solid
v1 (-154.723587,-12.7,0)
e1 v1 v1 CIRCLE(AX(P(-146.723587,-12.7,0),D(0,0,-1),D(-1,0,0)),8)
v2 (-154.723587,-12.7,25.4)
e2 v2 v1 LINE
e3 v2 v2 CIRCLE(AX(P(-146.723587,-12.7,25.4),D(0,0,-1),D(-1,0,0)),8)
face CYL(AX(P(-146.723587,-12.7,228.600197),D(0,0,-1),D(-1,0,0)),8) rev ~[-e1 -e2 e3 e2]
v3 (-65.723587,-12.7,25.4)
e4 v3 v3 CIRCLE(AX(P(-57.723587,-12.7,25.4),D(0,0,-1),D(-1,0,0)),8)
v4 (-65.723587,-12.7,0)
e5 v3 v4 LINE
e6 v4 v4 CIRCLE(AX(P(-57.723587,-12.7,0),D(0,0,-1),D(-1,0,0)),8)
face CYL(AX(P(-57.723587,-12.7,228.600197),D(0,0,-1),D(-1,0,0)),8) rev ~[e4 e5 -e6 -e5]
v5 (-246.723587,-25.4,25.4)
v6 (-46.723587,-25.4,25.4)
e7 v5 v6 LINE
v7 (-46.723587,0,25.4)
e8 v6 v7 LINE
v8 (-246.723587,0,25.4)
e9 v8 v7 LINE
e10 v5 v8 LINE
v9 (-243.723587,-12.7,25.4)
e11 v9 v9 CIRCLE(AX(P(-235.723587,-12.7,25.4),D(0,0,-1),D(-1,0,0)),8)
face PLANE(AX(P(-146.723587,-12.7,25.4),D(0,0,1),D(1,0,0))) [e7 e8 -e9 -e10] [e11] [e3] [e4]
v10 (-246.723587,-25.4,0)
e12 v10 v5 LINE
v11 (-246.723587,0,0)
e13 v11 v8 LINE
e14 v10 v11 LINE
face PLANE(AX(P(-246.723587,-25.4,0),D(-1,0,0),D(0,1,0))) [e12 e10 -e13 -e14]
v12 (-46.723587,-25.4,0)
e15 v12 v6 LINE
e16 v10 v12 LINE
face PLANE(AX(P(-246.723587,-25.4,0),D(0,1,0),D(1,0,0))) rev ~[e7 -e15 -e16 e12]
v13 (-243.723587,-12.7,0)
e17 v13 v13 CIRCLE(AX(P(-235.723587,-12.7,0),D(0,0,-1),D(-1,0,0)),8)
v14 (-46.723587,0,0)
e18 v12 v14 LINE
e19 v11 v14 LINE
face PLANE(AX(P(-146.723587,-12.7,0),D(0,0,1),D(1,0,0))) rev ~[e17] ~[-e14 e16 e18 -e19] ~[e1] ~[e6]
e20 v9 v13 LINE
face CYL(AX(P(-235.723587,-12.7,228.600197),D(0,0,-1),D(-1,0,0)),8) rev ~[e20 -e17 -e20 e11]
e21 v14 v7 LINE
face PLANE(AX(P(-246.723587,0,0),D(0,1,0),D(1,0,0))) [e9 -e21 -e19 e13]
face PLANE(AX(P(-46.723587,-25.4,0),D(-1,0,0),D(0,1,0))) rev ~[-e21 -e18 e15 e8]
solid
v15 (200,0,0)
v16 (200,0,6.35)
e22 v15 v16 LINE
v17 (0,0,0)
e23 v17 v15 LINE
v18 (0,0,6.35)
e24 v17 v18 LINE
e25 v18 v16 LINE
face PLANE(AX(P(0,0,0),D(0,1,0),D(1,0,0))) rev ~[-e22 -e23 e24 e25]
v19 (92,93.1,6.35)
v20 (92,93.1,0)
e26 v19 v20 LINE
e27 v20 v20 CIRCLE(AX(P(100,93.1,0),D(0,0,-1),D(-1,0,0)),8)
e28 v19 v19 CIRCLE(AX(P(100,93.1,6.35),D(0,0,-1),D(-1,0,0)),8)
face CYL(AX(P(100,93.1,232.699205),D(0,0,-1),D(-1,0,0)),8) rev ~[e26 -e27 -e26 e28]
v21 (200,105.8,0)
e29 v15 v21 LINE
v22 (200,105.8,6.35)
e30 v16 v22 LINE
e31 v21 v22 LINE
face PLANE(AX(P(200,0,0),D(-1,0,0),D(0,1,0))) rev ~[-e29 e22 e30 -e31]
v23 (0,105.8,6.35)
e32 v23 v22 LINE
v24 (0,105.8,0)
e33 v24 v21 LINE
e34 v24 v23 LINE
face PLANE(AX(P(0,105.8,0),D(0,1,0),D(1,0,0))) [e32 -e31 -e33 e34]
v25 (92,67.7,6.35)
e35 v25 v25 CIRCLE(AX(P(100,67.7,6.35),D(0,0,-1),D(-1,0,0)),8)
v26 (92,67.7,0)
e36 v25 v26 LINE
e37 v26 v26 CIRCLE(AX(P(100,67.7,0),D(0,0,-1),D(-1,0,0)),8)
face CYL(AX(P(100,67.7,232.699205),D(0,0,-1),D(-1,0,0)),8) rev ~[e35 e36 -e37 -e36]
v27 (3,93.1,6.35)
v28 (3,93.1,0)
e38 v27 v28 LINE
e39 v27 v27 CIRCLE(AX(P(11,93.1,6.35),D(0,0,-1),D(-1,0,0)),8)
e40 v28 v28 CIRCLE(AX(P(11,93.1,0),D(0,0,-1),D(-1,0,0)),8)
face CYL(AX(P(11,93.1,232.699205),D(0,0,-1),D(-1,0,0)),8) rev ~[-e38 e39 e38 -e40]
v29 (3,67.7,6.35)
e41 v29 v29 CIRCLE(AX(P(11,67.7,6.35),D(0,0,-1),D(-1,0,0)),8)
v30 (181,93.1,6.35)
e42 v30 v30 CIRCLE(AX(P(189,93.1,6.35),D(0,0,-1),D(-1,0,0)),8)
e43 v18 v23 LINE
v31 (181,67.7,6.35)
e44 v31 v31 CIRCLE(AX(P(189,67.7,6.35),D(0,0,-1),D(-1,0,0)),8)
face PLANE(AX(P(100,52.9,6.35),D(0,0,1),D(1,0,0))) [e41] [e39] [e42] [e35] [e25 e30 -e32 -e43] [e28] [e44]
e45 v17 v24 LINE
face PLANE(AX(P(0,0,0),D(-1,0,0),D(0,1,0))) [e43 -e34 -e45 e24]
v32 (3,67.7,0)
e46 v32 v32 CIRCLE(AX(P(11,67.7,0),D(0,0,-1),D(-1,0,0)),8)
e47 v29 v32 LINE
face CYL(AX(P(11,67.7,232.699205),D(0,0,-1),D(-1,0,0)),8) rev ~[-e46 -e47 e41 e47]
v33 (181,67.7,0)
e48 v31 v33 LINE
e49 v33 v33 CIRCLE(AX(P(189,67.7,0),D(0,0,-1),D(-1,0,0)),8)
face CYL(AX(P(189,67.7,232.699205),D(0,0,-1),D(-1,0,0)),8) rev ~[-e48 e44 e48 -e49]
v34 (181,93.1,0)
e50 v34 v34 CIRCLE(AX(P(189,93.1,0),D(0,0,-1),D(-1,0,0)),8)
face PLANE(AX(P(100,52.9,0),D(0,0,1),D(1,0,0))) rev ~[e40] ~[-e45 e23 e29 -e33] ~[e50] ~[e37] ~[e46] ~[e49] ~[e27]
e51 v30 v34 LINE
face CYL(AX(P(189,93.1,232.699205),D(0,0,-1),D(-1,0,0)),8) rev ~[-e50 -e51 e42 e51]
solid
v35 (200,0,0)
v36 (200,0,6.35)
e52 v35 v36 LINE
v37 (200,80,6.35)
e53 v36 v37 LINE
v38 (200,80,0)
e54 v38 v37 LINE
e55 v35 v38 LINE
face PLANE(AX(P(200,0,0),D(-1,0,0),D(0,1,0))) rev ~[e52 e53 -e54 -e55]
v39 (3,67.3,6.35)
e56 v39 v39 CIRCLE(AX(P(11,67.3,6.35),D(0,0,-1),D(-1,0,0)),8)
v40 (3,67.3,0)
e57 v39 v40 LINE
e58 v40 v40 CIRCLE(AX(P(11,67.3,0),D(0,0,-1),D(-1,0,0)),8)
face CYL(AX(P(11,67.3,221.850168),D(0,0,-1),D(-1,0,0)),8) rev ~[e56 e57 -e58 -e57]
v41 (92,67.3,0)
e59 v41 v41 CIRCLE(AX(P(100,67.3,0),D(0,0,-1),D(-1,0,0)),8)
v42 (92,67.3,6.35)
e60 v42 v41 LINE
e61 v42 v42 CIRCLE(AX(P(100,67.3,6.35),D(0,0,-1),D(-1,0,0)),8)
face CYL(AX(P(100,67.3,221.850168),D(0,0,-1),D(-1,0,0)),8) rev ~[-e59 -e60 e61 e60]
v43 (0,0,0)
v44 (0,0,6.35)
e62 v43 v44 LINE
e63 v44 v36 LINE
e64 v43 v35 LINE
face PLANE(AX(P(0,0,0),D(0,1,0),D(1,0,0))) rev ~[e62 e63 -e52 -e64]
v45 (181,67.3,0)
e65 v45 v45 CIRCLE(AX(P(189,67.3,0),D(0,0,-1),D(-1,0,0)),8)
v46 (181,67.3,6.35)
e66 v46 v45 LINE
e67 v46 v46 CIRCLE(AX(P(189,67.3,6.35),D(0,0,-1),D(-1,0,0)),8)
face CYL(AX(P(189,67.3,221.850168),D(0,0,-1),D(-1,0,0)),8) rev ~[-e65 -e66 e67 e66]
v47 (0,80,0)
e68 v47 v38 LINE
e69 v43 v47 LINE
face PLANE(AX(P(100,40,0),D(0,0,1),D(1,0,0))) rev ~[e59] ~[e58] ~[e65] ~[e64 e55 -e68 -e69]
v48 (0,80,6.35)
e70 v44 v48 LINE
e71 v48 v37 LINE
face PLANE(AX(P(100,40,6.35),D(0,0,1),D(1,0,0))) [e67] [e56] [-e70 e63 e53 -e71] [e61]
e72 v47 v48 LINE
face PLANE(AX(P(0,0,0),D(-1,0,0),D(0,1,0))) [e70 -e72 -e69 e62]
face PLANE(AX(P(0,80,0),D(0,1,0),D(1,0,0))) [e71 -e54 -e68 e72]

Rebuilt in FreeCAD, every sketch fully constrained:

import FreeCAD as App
import Part
import Sketcher

doc = App.newDocument("Part")
body = doc.addObject("PartDesign::Body", "Body")

# Sketch on XY plane
sketch1 = body.newObject("Sketcher::SketchObject", "Sketch")
sketch1.AttachmentSupport = (doc.getObject("XY_Plane"), [""])
sketch1.MapMode = "FlatFace"
sketch1.addGeometry([
    Part.LineSegment(App.Vector(0, 80, 0), App.Vector(0, 0, 0)),
    Part.LineSegment(App.Vector(0, 0, 0), App.Vector(200, 0, 0)),
    Part.LineSegment(App.Vector(200, 0, 0), App.Vector(200, 80, 0)),
    Part.LineSegment(App.Vector(200, 80, 0), App.Vector(0, 80, 0)),
], False)
sketch1.addConstraint([
    Sketcher.Constraint("Coincident", 0, 2, 1, 1),
    Sketcher.Constraint("Coincident", 1, 2, 2, 1),
    Sketcher.Constraint("Coincident", 2, 2, 3, 1),
    Sketcher.Constraint("Coincident", 3, 2, 0, 1),
    Sketcher.Constraint("Vertical", 0),
    Sketcher.Constraint("Horizontal", 1),
    Sketcher.Constraint("Vertical", 2),
    Sketcher.Constraint("Horizontal", 3),
    Sketcher.Constraint("Coincident", 0, 2, -1, 1),
    Sketcher.Constraint("DistanceX", 1, 1, 1, 2, 200.0),
    Sketcher.Constraint("DistanceY", 0, 2, 0, 1, 80.0),
])
pad1 = body.newObject("PartDesign::Pad", "Pad")
pad1.Profile = sketch1
pad1.Length = 6.35

# Sketch on XY plane
sketch2 = body.newObject("Sketcher::SketchObject", "Sketch001")
sketch2.AttachmentSupport = (doc.getObject("XY_Plane"), [""])
sketch2.MapMode = "FlatFace"
sketch2.AttachmentOffset = App.Placement(App.Vector(0, 0, 6.35), App.Rotation())
sketch2.addGeometry([
    Part.Circle(App.Vector(11, 67, 0), App.Vector(0, 0, 1), 8),
    Part.Circle(App.Vector(100, 67, 0), App.Vector(0, 0, 1), 8),
    Part.Circle(App.Vector(189, 67, 0), App.Vector(0, 0, 1), 8),
], False)
sketch2.addConstraint([
    Sketcher.Constraint("Equal", 0, 1),
    Sketcher.Constraint("Equal", 1, 2),
    Sketcher.Constraint("Horizontal", 0, 3, 1, 3),
    Sketcher.Constraint("Horizontal", 1, 3, 2, 3),
    Sketcher.Constraint("Diameter", 0, 16.0),
    Sketcher.Constraint("DistanceX", -1, 1, 0, 3, 11.0),
    Sketcher.Constraint("DistanceX", -1, 1, 1, 3, 100.0),
    Sketcher.Constraint("DistanceX", -1, 1, 2, 3, 189.0),
    Sketcher.Constraint("DistanceY", -1, 1, 0, 3, 67.3),
])
doc.recompute()
hole = body.newObject("PartDesign::Hole", "Hole")
hole.Profile = sketch2
hole.ThreadType = "None"
hole.Diameter = 16
hole.DepthType = "ThroughAll"
body2 = doc.addObject("PartDesign::Body", "Body001")

# Sketch on XY plane
sketch3 = body2.newObject("Sketcher::SketchObject", "Sketch002")
sketch3.AttachmentSupport = (doc.getObject("XY_Plane001"), [""])
sketch3.MapMode = "FlatFace"
sketch3.addGeometry([
    Part.LineSegment(App.Vector(-247, 0, 0), App.Vector(-247, -25, 0)),
    Part.LineSegment(App.Vector(-247, -25, 0), App.Vector(-47, -25, 0)),
    Part.LineSegment(App.Vector(-47, -25, 0), App.Vector(-47, 0, 0)),
    Part.LineSegment(App.Vector(-47, 0, 0), App.Vector(-247, 0, 0)),
], False)
sketch3.addConstraint([
    Sketcher.Constraint("Coincident", 0, 2, 1, 1),
    Sketcher.Constraint("Coincident", 1, 2, 2, 1),
    Sketcher.Constraint("Coincident", 2, 2, 3, 1),
    Sketcher.Constraint("Coincident", 3, 2, 0, 1),
    Sketcher.Constraint("Vertical", 0),
    Sketcher.Constraint("Horizontal", 1),
    Sketcher.Constraint("Vertical", 2),
    Sketcher.Constraint("Horizontal", 3),
    Sketcher.Constraint("PointOnObject", 2, 2, -1),
    Sketcher.Constraint("DistanceX", 1, 1, 1, 2, 200.0),
    Sketcher.Constraint("DistanceY", 0, 2, 0, 1, 25.4),
    Sketcher.Constraint("DistanceX", 0, 2, -1, 1, 246.723587),
])
pad2 = body2.newObject("PartDesign::Pad", "Pad001")
pad2.Profile = sketch3
pad2.Length = 25.4

# Sketch on XY plane
sketch4 = body2.newObject("Sketcher::SketchObject", "Sketch003")
sketch4.AttachmentSupport = (doc.getObject("XY_Plane001"), [""])
sketch4.MapMode = "FlatFace"
sketch4.AttachmentOffset = App.Placement(App.Vector(0, 0, 25.4), App.Rotation())
sketch4.addGeometry([
    Part.Circle(App.Vector(-58, -13, 0), App.Vector(0, 0, 1), 8),
    Part.Circle(App.Vector(-147, -13, 0), App.Vector(0, 0, 1), 8),
    Part.Circle(App.Vector(-236, -13, 0), App.Vector(0, 0, 1), 8),
], False)
sketch4.addConstraint([
    Sketcher.Constraint("Equal", 0, 1),
    Sketcher.Constraint("Equal", 1, 2),
    Sketcher.Constraint("Horizontal", 0, 3, 1, 3),
    Sketcher.Constraint("Horizontal", 1, 3, 2, 3),
    Sketcher.Constraint("Diameter", 0, 16.0),
    Sketcher.Constraint("DistanceX", 1, 3, 0, 3, 89.0),
    Sketcher.Constraint("DistanceX", 2, 3, 1, 3, 89.0),
    Sketcher.Constraint("DistanceY", 0, 3, -1, 1, 12.7),
    Sketcher.Constraint("DistanceX", 0, 3, -1, 1, 57.723587),
])
doc.recompute()
hole2 = body2.newObject("PartDesign::Hole", "Hole001")
hole2.Profile = sketch4
hole2.ThreadType = "None"
hole2.Diameter = 16
hole2.DepthType = "ThroughAll"
body3 = doc.addObject("PartDesign::Body", "Body002")

# Sketch on XY plane
sketch5 = body3.newObject("Sketcher::SketchObject", "Sketch004")
sketch5.AttachmentSupport = (doc.getObject("XY_Plane002"), [""])
sketch5.MapMode = "FlatFace"
sketch5.addGeometry([
    Part.LineSegment(App.Vector(0, 106, 0), App.Vector(0, 0, 0)),
    Part.LineSegment(App.Vector(0, 0, 0), App.Vector(200, 0, 0)),
    Part.LineSegment(App.Vector(200, 0, 0), App.Vector(200, 106, 0)),
    Part.LineSegment(App.Vector(200, 106, 0), App.Vector(0, 106, 0)),
], False)
sketch5.addConstraint([
    Sketcher.Constraint("Coincident", 0, 2, 1, 1),
    Sketcher.Constraint("Coincident", 1, 2, 2, 1),
    Sketcher.Constraint("Coincident", 2, 2, 3, 1),
    Sketcher.Constraint("Coincident", 3, 2, 0, 1),
    Sketcher.Constraint("Vertical", 0),
    Sketcher.Constraint("Horizontal", 1),
    Sketcher.Constraint("Vertical", 2),
    Sketcher.Constraint("Horizontal", 3),
    Sketcher.Constraint("Coincident", 0, 2, -1, 1),
    Sketcher.Constraint("DistanceX", 1, 1, 1, 2, 200.0),
    Sketcher.Constraint("DistanceY", 0, 2, 0, 1, 105.8),
])
pad3 = body3.newObject("PartDesign::Pad", "Pad002")
pad3.Profile = sketch5
pad3.Length = 6.35

# Sketch on XY plane
sketch6 = body3.newObject("Sketcher::SketchObject", "Sketch005")
sketch6.AttachmentSupport = (doc.getObject("XY_Plane002"), [""])
sketch6.MapMode = "FlatFace"
sketch6.AttachmentOffset = App.Placement(App.Vector(0, 0, 6.35), App.Rotation())
sketch6.addGeometry([
    Part.Circle(App.Vector(11, 93, 0), App.Vector(0, 0, 1), 8),  # 0
    Part.Circle(App.Vector(100, 93, 0), App.Vector(0, 0, 1), 8),  # 1
    Part.Circle(App.Vector(189, 93, 0), App.Vector(0, 0, 1), 8),  # 2
    Part.Circle(App.Vector(189, 68, 0), App.Vector(0, 0, 1), 8),  # 3
    Part.Circle(App.Vector(100, 68, 0), App.Vector(0, 0, 1), 8),  # 4
    Part.Circle(App.Vector(11, 68, 0), App.Vector(0, 0, 1), 8),  # 5
], False)
sketch6.addConstraint([
    Sketcher.Constraint("Equal", 0, 1),
    Sketcher.Constraint("Equal", 1, 2),
    Sketcher.Constraint("Equal", 2, 3),
    Sketcher.Constraint("Equal", 3, 4),
    Sketcher.Constraint("Equal", 4, 5),
    Sketcher.Constraint("Horizontal", 0, 3, 1, 3),
    Sketcher.Constraint("Horizontal", 1, 3, 2, 3),
    Sketcher.Constraint("Horizontal", 3, 3, 4, 3),
    Sketcher.Constraint("Horizontal", 4, 3, 5, 3),
    Sketcher.Constraint("Vertical", 2, 3, 3, 3),
    Sketcher.Constraint("Vertical", 1, 3, 4, 3),
    Sketcher.Constraint("Vertical", 0, 3, 5, 3),
    Sketcher.Constraint("Diameter", 0, 16.0),
    Sketcher.Constraint("DistanceX", -1, 1, 0, 3, 11.0),
    Sketcher.Constraint("DistanceX", -1, 1, 1, 3, 100.0),
    Sketcher.Constraint("DistanceX", -1, 1, 2, 3, 189.0),
    Sketcher.Constraint("DistanceY", -1, 1, 0, 3, 93.1),
    Sketcher.Constraint("DistanceY", -1, 1, 3, 3, 67.7),
])
doc.recompute()
hole3 = body3.newObject("PartDesign::Hole", "Hole002")
hole3.Profile = sketch6
hole3.ThreadType = "None"
hole3.Diameter = 16
hole3.DepthType = "ThroughAll"

doc.recompute()
